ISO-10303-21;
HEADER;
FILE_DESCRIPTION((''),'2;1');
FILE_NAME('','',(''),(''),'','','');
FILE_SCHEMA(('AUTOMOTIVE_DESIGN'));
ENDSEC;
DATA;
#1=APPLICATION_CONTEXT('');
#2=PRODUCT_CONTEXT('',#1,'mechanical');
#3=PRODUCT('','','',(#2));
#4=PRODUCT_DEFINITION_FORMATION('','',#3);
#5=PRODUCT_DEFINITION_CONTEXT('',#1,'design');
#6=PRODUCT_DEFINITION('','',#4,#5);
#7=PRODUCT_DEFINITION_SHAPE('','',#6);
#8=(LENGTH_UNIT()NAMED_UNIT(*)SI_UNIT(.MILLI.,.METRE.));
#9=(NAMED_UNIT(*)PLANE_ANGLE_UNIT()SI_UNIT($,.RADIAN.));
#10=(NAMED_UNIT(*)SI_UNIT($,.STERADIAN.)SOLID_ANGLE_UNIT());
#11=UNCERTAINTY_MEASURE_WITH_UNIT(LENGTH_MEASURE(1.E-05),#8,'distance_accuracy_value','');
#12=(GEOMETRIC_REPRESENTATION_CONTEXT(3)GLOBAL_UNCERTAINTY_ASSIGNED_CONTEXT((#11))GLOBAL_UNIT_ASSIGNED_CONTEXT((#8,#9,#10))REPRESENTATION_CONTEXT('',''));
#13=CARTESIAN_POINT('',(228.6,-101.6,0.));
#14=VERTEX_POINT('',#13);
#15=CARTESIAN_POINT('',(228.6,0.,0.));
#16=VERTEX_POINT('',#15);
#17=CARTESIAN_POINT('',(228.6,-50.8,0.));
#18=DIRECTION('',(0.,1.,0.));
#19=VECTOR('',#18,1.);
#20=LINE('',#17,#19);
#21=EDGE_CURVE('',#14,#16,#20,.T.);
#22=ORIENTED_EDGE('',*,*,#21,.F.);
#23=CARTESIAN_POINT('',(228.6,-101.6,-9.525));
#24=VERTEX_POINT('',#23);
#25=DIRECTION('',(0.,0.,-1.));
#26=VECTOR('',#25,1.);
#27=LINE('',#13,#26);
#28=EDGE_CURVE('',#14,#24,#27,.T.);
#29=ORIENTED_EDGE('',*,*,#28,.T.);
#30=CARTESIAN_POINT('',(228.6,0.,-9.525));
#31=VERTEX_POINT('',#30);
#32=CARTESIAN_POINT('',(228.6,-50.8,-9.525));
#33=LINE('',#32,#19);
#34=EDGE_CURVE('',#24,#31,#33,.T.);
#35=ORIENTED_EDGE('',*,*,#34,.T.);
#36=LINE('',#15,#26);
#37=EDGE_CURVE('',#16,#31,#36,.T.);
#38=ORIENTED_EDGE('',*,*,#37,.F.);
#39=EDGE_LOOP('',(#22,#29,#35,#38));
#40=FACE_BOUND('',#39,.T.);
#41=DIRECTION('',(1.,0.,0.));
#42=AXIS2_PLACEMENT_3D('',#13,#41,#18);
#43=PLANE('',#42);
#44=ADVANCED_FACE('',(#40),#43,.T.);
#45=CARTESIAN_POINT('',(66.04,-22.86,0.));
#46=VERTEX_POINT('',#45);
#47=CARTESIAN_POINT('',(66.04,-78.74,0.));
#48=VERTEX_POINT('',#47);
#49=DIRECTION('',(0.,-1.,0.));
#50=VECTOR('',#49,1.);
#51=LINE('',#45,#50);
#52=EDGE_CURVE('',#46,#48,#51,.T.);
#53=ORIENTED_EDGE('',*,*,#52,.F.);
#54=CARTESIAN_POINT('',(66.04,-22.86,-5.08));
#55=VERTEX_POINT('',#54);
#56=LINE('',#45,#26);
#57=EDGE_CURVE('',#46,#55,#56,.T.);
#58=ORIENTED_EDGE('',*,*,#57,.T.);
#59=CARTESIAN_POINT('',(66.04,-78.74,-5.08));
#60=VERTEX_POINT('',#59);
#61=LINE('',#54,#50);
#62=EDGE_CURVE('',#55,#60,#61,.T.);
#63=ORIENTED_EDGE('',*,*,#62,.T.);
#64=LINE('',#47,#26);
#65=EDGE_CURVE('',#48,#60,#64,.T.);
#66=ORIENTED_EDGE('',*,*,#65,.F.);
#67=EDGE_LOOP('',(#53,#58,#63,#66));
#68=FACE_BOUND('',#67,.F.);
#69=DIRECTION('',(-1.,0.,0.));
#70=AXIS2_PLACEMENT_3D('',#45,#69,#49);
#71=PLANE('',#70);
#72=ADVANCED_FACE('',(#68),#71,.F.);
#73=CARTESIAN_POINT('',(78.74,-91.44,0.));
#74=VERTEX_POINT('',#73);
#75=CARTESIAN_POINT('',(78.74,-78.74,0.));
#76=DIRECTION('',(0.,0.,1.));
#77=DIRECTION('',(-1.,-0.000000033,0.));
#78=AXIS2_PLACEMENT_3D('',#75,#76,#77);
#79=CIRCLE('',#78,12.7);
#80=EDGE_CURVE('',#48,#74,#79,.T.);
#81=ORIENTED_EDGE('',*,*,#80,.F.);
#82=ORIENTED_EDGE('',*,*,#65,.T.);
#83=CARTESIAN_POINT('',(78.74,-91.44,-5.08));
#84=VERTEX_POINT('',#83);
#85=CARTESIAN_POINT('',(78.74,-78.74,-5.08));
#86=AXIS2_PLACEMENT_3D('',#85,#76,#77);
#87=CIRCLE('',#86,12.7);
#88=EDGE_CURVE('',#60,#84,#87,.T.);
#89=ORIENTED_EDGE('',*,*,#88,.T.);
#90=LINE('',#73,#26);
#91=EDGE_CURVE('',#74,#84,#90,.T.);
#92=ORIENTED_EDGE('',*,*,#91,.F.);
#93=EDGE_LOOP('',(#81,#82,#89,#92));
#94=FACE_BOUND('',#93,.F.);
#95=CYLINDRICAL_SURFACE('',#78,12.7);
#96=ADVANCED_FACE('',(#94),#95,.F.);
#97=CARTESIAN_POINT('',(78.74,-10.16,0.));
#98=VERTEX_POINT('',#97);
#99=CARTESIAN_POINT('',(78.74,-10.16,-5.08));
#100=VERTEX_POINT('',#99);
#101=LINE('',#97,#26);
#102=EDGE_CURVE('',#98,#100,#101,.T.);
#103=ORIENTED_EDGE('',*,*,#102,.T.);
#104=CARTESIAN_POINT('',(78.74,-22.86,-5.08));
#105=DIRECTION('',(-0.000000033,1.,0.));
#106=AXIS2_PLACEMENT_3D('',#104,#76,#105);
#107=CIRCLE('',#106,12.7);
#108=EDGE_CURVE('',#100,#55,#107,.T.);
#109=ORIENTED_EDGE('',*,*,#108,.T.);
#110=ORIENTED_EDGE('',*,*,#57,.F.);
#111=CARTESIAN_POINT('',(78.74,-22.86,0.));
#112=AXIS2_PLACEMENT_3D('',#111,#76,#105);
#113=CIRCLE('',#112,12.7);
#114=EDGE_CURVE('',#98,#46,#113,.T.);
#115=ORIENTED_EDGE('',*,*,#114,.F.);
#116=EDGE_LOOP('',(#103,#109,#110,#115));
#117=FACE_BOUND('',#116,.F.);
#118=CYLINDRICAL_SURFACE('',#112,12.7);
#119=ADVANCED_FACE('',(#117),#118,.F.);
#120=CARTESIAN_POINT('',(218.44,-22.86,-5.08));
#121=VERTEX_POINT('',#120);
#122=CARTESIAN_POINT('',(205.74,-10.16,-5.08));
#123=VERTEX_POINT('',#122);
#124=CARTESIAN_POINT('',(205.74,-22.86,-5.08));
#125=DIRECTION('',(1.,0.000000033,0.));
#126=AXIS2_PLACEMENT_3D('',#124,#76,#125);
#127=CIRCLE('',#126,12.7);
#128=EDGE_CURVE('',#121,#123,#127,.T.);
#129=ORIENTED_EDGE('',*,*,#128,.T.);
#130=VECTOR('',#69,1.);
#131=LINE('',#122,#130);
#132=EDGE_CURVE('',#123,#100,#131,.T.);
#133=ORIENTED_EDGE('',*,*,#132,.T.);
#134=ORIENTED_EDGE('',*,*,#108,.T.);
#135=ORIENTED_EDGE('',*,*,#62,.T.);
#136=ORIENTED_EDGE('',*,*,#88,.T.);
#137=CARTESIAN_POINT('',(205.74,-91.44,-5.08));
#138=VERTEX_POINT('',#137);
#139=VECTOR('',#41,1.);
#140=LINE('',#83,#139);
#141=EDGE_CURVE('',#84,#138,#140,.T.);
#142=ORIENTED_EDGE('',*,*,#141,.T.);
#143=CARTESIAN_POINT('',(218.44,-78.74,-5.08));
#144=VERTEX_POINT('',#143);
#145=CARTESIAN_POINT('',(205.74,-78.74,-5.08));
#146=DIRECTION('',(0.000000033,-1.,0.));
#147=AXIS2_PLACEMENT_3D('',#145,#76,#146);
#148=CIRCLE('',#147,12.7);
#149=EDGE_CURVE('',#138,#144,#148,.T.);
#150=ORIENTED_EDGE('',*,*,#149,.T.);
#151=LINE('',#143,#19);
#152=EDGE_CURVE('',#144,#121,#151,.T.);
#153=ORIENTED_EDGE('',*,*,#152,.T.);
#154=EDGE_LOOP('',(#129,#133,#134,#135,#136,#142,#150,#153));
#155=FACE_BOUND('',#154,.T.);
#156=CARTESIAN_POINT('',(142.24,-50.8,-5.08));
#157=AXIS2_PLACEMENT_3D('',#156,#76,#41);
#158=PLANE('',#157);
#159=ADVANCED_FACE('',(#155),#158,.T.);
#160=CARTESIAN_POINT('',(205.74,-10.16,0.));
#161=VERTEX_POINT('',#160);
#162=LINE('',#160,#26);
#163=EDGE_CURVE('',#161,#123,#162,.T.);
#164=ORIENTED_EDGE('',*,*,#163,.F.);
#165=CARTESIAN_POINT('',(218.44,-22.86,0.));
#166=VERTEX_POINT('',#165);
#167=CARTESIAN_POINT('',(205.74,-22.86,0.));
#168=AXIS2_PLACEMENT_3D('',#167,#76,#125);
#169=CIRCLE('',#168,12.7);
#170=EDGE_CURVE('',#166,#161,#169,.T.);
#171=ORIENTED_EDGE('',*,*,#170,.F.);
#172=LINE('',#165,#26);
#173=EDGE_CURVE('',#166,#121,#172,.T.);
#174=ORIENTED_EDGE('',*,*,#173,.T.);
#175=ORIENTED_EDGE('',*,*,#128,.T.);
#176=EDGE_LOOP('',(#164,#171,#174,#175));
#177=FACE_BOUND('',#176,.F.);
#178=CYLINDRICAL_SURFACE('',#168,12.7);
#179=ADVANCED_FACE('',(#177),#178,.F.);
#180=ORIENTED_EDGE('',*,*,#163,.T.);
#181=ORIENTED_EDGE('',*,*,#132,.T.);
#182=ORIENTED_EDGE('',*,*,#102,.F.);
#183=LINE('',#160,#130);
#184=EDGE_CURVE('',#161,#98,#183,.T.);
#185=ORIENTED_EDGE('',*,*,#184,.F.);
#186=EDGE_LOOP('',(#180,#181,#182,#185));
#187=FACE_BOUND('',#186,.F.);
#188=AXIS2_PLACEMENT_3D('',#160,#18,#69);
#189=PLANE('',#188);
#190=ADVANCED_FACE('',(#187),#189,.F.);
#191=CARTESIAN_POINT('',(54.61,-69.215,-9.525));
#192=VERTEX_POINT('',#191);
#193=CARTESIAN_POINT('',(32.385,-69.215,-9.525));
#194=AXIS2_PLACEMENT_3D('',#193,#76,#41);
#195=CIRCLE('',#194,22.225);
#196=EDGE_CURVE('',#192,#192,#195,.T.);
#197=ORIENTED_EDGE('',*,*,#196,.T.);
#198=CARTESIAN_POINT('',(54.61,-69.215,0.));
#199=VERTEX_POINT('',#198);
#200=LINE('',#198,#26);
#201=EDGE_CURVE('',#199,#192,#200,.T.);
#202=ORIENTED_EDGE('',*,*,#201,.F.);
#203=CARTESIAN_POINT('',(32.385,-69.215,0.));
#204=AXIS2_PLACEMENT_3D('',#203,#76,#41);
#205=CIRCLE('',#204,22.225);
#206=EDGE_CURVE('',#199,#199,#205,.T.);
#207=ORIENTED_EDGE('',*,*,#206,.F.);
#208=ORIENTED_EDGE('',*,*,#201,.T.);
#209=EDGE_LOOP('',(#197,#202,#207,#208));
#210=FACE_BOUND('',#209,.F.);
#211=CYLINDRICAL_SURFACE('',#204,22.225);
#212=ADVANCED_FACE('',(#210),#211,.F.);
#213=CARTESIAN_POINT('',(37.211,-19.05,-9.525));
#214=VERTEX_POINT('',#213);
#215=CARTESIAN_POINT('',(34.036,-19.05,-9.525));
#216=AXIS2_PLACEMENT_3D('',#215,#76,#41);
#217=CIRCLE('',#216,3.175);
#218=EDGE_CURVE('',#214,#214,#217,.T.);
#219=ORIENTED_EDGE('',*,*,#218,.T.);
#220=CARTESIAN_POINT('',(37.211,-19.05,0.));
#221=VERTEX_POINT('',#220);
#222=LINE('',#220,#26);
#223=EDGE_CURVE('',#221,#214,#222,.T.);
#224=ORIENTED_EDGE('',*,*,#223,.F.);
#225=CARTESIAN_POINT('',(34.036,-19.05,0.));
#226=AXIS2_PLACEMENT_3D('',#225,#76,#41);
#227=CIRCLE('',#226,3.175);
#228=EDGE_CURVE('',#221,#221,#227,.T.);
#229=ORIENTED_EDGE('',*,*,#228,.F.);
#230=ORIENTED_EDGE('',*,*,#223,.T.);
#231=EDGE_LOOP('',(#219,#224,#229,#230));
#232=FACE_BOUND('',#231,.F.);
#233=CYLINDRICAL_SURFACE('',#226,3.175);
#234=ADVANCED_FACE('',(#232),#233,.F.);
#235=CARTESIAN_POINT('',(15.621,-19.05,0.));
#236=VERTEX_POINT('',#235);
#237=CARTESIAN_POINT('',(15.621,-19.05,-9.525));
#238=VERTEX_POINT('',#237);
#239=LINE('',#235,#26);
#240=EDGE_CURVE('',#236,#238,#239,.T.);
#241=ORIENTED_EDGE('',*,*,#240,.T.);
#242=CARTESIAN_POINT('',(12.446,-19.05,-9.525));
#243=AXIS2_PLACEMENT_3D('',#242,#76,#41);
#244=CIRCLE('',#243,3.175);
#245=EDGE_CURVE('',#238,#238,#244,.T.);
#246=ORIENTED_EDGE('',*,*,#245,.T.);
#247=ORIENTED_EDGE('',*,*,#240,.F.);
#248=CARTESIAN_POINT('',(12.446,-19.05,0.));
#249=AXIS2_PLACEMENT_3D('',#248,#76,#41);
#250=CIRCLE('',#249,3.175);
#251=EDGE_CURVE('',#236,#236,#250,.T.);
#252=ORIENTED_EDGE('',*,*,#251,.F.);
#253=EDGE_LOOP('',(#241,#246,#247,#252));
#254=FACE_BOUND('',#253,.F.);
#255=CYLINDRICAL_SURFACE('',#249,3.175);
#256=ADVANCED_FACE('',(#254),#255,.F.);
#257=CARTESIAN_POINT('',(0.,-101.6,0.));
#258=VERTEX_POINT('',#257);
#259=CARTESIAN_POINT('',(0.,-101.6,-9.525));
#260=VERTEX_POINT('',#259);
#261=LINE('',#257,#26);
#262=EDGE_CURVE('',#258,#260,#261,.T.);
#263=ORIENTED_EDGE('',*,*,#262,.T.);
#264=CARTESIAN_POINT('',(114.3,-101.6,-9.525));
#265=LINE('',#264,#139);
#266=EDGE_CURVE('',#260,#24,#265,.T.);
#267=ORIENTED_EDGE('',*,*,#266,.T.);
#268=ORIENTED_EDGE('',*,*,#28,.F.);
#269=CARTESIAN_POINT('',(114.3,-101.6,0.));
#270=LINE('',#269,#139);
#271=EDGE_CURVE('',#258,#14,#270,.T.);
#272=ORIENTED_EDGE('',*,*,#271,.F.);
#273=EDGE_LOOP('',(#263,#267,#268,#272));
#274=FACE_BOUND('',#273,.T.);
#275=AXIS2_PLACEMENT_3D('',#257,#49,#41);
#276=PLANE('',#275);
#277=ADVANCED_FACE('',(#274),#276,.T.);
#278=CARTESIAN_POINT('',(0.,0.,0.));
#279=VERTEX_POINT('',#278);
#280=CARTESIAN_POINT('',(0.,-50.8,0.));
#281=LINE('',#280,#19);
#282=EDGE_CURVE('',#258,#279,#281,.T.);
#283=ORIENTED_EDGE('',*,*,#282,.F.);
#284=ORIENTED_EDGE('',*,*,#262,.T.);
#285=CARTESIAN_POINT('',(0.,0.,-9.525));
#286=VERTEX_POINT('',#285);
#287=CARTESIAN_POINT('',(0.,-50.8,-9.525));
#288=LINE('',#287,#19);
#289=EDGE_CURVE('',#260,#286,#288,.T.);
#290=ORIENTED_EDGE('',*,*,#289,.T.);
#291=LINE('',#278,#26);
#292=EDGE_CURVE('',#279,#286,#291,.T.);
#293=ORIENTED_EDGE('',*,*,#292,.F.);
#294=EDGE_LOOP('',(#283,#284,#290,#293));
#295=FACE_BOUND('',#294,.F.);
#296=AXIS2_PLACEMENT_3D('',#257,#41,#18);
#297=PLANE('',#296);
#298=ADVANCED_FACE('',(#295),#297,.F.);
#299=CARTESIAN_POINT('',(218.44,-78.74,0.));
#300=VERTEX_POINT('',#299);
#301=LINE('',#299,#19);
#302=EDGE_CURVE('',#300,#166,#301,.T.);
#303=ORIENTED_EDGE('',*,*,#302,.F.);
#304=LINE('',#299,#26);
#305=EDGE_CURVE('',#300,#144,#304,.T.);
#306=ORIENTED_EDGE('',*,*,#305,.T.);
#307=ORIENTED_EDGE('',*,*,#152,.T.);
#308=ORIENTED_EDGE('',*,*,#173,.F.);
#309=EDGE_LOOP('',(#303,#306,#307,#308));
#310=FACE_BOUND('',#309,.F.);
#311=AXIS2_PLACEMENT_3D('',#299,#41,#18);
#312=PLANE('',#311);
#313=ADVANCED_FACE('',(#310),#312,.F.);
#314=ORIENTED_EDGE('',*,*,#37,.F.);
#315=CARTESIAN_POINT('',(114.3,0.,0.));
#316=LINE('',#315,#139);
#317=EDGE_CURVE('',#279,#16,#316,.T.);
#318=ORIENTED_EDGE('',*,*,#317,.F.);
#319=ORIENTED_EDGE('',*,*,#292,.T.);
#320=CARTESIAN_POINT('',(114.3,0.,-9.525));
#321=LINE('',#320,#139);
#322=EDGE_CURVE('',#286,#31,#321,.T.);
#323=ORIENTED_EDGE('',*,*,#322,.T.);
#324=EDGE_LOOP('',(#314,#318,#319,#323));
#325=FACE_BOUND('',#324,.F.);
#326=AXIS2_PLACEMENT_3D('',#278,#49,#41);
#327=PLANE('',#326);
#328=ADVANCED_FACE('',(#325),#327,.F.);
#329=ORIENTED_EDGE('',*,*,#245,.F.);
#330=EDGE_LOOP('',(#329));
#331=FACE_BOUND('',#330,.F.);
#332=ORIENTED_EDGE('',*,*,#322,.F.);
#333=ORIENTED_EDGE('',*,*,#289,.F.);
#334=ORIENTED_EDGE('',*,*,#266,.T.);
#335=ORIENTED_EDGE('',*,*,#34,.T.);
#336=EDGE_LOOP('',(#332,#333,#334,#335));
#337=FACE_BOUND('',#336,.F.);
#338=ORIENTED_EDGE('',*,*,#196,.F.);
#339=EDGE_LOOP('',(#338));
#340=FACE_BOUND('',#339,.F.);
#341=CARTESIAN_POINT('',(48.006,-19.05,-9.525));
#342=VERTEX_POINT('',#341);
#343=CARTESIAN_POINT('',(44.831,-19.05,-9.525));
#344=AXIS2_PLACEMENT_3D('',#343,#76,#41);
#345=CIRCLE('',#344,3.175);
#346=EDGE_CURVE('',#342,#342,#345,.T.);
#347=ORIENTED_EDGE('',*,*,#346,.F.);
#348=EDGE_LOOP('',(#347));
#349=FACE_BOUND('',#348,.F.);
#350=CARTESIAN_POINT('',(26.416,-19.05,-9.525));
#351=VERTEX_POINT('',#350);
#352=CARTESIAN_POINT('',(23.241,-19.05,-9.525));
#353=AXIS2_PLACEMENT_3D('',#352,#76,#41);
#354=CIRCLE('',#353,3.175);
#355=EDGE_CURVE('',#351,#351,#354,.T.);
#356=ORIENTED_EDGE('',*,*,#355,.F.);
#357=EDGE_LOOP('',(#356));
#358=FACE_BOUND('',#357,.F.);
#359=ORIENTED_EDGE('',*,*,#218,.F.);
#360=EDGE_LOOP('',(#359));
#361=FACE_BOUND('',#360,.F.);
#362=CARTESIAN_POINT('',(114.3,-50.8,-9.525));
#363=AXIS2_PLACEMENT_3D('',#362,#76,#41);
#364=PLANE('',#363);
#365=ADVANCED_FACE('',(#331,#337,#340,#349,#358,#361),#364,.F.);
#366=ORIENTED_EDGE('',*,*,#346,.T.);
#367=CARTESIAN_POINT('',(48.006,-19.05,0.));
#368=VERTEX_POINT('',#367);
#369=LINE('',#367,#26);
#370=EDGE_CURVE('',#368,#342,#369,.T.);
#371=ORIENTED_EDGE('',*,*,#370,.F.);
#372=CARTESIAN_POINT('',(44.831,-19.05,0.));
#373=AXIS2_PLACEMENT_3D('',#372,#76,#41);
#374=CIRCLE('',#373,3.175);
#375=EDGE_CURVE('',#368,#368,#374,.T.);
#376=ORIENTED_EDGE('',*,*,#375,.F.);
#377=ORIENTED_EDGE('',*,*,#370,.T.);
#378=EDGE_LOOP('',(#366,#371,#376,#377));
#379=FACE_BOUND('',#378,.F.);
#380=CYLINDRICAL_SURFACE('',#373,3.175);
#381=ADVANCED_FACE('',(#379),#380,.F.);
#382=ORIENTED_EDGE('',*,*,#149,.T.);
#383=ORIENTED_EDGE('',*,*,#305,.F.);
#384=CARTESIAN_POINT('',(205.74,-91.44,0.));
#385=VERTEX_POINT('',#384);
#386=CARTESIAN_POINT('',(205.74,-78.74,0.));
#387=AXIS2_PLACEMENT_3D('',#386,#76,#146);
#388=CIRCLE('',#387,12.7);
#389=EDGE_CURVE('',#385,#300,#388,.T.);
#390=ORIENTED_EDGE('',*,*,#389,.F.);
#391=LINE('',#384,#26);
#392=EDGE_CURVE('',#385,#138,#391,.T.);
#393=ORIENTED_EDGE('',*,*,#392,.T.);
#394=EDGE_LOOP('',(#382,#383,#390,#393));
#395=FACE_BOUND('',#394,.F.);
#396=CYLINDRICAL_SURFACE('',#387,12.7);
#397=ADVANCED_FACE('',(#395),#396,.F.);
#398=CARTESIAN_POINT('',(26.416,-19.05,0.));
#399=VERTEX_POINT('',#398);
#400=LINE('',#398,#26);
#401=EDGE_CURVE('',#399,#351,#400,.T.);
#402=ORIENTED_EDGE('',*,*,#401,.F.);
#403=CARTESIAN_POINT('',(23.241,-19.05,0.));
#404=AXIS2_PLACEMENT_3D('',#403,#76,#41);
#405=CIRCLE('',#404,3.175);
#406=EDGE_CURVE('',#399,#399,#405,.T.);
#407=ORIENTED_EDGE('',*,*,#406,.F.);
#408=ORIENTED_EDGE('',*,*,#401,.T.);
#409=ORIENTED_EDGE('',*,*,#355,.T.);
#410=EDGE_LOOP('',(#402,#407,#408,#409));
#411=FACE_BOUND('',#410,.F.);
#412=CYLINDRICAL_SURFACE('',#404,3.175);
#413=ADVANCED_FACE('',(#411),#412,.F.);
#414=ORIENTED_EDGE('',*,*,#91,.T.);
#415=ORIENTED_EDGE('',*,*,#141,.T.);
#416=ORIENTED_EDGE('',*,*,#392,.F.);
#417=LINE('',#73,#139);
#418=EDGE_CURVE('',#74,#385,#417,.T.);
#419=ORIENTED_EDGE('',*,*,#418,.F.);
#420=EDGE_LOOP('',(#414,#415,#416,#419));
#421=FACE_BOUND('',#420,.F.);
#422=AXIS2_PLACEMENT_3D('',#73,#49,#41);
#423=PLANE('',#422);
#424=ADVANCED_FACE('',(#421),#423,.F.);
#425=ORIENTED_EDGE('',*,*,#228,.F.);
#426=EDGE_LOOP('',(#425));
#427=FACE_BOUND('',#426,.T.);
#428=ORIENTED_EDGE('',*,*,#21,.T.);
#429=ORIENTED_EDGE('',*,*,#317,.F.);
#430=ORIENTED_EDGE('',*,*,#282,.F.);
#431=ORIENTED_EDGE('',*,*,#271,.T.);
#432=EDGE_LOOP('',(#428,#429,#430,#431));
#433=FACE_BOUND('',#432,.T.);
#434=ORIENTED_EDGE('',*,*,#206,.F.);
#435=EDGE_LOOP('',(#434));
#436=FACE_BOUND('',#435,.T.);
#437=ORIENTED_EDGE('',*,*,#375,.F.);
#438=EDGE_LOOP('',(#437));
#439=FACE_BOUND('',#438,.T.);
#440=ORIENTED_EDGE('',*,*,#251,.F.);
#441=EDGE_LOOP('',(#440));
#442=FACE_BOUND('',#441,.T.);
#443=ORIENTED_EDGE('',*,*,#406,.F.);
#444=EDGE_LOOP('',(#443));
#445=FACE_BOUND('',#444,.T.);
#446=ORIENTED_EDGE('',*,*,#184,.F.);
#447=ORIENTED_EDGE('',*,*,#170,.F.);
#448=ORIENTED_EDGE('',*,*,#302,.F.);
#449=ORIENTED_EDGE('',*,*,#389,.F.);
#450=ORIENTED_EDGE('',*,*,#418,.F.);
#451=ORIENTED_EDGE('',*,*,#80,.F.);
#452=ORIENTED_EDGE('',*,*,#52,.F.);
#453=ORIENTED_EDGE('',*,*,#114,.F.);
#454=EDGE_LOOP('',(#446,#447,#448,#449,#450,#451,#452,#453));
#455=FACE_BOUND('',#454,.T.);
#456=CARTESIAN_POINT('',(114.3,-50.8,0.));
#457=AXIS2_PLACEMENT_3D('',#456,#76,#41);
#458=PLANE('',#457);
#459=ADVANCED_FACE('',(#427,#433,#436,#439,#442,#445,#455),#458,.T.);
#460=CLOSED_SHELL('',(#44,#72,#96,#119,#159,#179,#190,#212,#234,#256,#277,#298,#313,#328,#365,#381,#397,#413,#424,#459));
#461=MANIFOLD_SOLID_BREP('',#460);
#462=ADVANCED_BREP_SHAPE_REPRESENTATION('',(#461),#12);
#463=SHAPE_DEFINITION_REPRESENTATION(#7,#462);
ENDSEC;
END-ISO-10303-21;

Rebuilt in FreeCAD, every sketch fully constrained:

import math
import FreeCAD as App
import Part
import Sketcher
Q = App.Units.Quantity


def add_polygon(sketch, points):
    """Adds a closed chain of lines whose ends are joined by coincident constraints."""
    first, n = sketch.GeometryCount, len(points)
    for a, b in zip(points, points[1:] + points[:1]):
        sketch.addGeometry(Part.LineSegment(App.Vector(*a, 0), App.Vector(*b, 0)), False)
    for i in range(n):
        sketch.addConstraint(Sketcher.Constraint("Coincident", first + i, 2, first + (i + 1) % n, 1))

doc = App.newDocument("Part")
body = doc.addObject("PartDesign::Body", "Body")

# Sketch on XY plane
sketch1 = body.newObject("Sketcher::SketchObject", "Sketch")
sketch1.AttachmentSupport = (doc.getObject("XY_Plane"), [""])
sketch1.MapMode = "FlatFace"
add_polygon(sketch1, [(0, 0), (0, -101.6), (228.6, -101.6), (228.6, 0)])  # lines 0-3
sketch1.addGeometry(Part.Circle(App.Vector(32.4, -69.2, 0), App.Vector(0, 0, 1), 22.2), False)  # 4
sketch1.addGeometry(Part.Circle(App.Vector(12.4, -19.1, 0), App.Vector(0, 0, 1), 3.2), False)  # 5
sketch1.addGeometry(Part.Circle(App.Vector(23.2, -19.1, 0), App.Vector(0, 0, 1), 3.2), False)  # 6
sketch1.addGeometry(Part.Circle(App.Vector(34, -19.1, 0), App.Vector(0, 0, 1), 3.2), False)  # 7
sketch1.addGeometry(Part.Circle(App.Vector(44.8, -19.1, 0), App.Vector(0, 0, 1), 3.2), False)  # 8
sketch1.addConstraint([
    Sketcher.Constraint("Vertical", 0),
    Sketcher.Constraint("Horizontal", 1),
    Sketcher.Constraint("Vertical", 2),
    Sketcher.Constraint("Horizontal", 3),
    Sketcher.Constraint("Coincident", 3, 2, -1, 1),
    Sketcher.Constraint("Equal", 5, 6),
    Sketcher.Constraint("Equal", 6, 7),
    Sketcher.Constraint("Equal", 7, 8),
    Sketcher.Constraint("Horizontal", 5, 3, 6, 3),
    Sketcher.Constraint("Horizontal", 6, 3, 7, 3),
    Sketcher.Constraint("Horizontal", 7, 3, 8, 3),
    Sketcher.Constraint("Diameter", 4, Q("1.75 in")),
    Sketcher.Constraint("Diameter", 5, Q("0.25 in")),
    Sketcher.Constraint("DistanceX", 1, 1, 1, 2, Q("9 in")),
    Sketcher.Constraint("DistanceY", 0, 2, 0, 1, Q("4 in")),
    Sketcher.Constraint("DistanceX", -1, 1, 5, 3, Q("0.49 in")),
    Sketcher.Constraint("DistanceY", 5, 3, -1, 1, Q("0.75 in")),
    Sketcher.Constraint("DistanceX", -1, 1, 7, 3, Q("1.34 in")),
    Sketcher.Constraint("DistanceX", 6, 3, 4, 3, Q("0.36 in")),
    Sketcher.Constraint("DistanceX", 6, 3, 8, 3, Q("0.85 in")),
    Sketcher.Constraint("DistanceX", -1, 1, 4, 3, Q("1.275 in")),
    Sketcher.Constraint("DistanceY", 4, 3, -1, 1, Q("2.725 in")),
])
pad1 = body.newObject("PartDesign::Pad", "Pad")
pad1.Profile = sketch1
pad1.Length = Q("0.375 in")
pad1.Reversed = True

# Sketch on XY plane
sketch2 = body.newObject("Sketcher::SketchObject", "Sketch001")
sketch2.AttachmentSupport = (doc.getObject("XY_Plane"), [""])
sketch2.MapMode = "FlatFace"
sketch2.addGeometry([
    Part.LineSegment(App.Vector(206, -10, 0), App.Vector(79, -10, 0)),  # 0
    Part.ArcOfCircle(Part.Circle(App.Vector(79, -23, 0), App.Vector(0, 0, 1), 13), math.radians(90), math.radians(180)),  # 1
    Part.LineSegment(App.Vector(66, -23, 0), App.Vector(66, -79, 0)),  # 2
    Part.ArcOfCircle(Part.Circle(App.Vector(79, -79, 0), App.Vector(0, 0, 1), 13), math.radians(-180), math.radians(-90)),  # 3
    Part.LineSegment(App.Vector(79, -91, 0), App.Vector(206, -91, 0)),  # 4
    Part.ArcOfCircle(Part.Circle(App.Vector(206, -79, 0), App.Vector(0, 0, 1), 13), math.radians(-90), math.radians(0)),  # 5
    Part.LineSegment(App.Vector(218, -79, 0), App.Vector(218, -23, 0)),  # 6
    Part.ArcOfCircle(Part.Circle(App.Vector(206, -23, 0), App.Vector(0, 0, 1), 13), math.radians(0), math.radians(90)),  # 7
], False)
sketch2.addConstraint([
    Sketcher.Constraint("Tangent", 0, 2, 1, 1),
    Sketcher.Constraint("Tangent", 1, 2, 2, 1),
    Sketcher.Constraint("Tangent", 2, 2, 3, 1),
    Sketcher.Constraint("Tangent", 3, 2, 4, 1),
    Sketcher.Constraint("Tangent", 4, 2, 5, 1),
    Sketcher.Constraint("Tangent", 5, 2, 6, 1),
    Sketcher.Constraint("Tangent", 6, 2, 7, 1),
    Sketcher.Constraint("Tangent", 7, 2, 0, 1),
    Sketcher.Constraint("Horizontal", 0),
    Sketcher.Constraint("Vertical", 2),
    Sketcher.Constraint("Horizontal", 4),
    Sketcher.Constraint("Vertical", 6),
    Sketcher.Constraint("Equal", 1, 3),
    Sketcher.Constraint("Equal", 3, 5),
    Sketcher.Constraint("Equal", 5, 7),
    Sketcher.Constraint("Radius", 1, Q("0.5 in")),
    Sketcher.Constraint("DistanceX", 0, 2, 0, 1, Q("5 in")),
    Sketcher.Constraint("DistanceY", 2, 2, 2, 1, Q("2.2 in")),
    Sketcher.Constraint("DistanceX", -1, 1, 1, 3, Q("3.1 in")),
    Sketcher.Constraint("DistanceY", 1, 3, -1, 1, Q("0.9 in")),
])
pocket1 = body.newObject("PartDesign::Pocket", "Pocket")
pocket1.Profile = sketch2
pocket1.Length = Q("0.2 in")

doc.recompute()
